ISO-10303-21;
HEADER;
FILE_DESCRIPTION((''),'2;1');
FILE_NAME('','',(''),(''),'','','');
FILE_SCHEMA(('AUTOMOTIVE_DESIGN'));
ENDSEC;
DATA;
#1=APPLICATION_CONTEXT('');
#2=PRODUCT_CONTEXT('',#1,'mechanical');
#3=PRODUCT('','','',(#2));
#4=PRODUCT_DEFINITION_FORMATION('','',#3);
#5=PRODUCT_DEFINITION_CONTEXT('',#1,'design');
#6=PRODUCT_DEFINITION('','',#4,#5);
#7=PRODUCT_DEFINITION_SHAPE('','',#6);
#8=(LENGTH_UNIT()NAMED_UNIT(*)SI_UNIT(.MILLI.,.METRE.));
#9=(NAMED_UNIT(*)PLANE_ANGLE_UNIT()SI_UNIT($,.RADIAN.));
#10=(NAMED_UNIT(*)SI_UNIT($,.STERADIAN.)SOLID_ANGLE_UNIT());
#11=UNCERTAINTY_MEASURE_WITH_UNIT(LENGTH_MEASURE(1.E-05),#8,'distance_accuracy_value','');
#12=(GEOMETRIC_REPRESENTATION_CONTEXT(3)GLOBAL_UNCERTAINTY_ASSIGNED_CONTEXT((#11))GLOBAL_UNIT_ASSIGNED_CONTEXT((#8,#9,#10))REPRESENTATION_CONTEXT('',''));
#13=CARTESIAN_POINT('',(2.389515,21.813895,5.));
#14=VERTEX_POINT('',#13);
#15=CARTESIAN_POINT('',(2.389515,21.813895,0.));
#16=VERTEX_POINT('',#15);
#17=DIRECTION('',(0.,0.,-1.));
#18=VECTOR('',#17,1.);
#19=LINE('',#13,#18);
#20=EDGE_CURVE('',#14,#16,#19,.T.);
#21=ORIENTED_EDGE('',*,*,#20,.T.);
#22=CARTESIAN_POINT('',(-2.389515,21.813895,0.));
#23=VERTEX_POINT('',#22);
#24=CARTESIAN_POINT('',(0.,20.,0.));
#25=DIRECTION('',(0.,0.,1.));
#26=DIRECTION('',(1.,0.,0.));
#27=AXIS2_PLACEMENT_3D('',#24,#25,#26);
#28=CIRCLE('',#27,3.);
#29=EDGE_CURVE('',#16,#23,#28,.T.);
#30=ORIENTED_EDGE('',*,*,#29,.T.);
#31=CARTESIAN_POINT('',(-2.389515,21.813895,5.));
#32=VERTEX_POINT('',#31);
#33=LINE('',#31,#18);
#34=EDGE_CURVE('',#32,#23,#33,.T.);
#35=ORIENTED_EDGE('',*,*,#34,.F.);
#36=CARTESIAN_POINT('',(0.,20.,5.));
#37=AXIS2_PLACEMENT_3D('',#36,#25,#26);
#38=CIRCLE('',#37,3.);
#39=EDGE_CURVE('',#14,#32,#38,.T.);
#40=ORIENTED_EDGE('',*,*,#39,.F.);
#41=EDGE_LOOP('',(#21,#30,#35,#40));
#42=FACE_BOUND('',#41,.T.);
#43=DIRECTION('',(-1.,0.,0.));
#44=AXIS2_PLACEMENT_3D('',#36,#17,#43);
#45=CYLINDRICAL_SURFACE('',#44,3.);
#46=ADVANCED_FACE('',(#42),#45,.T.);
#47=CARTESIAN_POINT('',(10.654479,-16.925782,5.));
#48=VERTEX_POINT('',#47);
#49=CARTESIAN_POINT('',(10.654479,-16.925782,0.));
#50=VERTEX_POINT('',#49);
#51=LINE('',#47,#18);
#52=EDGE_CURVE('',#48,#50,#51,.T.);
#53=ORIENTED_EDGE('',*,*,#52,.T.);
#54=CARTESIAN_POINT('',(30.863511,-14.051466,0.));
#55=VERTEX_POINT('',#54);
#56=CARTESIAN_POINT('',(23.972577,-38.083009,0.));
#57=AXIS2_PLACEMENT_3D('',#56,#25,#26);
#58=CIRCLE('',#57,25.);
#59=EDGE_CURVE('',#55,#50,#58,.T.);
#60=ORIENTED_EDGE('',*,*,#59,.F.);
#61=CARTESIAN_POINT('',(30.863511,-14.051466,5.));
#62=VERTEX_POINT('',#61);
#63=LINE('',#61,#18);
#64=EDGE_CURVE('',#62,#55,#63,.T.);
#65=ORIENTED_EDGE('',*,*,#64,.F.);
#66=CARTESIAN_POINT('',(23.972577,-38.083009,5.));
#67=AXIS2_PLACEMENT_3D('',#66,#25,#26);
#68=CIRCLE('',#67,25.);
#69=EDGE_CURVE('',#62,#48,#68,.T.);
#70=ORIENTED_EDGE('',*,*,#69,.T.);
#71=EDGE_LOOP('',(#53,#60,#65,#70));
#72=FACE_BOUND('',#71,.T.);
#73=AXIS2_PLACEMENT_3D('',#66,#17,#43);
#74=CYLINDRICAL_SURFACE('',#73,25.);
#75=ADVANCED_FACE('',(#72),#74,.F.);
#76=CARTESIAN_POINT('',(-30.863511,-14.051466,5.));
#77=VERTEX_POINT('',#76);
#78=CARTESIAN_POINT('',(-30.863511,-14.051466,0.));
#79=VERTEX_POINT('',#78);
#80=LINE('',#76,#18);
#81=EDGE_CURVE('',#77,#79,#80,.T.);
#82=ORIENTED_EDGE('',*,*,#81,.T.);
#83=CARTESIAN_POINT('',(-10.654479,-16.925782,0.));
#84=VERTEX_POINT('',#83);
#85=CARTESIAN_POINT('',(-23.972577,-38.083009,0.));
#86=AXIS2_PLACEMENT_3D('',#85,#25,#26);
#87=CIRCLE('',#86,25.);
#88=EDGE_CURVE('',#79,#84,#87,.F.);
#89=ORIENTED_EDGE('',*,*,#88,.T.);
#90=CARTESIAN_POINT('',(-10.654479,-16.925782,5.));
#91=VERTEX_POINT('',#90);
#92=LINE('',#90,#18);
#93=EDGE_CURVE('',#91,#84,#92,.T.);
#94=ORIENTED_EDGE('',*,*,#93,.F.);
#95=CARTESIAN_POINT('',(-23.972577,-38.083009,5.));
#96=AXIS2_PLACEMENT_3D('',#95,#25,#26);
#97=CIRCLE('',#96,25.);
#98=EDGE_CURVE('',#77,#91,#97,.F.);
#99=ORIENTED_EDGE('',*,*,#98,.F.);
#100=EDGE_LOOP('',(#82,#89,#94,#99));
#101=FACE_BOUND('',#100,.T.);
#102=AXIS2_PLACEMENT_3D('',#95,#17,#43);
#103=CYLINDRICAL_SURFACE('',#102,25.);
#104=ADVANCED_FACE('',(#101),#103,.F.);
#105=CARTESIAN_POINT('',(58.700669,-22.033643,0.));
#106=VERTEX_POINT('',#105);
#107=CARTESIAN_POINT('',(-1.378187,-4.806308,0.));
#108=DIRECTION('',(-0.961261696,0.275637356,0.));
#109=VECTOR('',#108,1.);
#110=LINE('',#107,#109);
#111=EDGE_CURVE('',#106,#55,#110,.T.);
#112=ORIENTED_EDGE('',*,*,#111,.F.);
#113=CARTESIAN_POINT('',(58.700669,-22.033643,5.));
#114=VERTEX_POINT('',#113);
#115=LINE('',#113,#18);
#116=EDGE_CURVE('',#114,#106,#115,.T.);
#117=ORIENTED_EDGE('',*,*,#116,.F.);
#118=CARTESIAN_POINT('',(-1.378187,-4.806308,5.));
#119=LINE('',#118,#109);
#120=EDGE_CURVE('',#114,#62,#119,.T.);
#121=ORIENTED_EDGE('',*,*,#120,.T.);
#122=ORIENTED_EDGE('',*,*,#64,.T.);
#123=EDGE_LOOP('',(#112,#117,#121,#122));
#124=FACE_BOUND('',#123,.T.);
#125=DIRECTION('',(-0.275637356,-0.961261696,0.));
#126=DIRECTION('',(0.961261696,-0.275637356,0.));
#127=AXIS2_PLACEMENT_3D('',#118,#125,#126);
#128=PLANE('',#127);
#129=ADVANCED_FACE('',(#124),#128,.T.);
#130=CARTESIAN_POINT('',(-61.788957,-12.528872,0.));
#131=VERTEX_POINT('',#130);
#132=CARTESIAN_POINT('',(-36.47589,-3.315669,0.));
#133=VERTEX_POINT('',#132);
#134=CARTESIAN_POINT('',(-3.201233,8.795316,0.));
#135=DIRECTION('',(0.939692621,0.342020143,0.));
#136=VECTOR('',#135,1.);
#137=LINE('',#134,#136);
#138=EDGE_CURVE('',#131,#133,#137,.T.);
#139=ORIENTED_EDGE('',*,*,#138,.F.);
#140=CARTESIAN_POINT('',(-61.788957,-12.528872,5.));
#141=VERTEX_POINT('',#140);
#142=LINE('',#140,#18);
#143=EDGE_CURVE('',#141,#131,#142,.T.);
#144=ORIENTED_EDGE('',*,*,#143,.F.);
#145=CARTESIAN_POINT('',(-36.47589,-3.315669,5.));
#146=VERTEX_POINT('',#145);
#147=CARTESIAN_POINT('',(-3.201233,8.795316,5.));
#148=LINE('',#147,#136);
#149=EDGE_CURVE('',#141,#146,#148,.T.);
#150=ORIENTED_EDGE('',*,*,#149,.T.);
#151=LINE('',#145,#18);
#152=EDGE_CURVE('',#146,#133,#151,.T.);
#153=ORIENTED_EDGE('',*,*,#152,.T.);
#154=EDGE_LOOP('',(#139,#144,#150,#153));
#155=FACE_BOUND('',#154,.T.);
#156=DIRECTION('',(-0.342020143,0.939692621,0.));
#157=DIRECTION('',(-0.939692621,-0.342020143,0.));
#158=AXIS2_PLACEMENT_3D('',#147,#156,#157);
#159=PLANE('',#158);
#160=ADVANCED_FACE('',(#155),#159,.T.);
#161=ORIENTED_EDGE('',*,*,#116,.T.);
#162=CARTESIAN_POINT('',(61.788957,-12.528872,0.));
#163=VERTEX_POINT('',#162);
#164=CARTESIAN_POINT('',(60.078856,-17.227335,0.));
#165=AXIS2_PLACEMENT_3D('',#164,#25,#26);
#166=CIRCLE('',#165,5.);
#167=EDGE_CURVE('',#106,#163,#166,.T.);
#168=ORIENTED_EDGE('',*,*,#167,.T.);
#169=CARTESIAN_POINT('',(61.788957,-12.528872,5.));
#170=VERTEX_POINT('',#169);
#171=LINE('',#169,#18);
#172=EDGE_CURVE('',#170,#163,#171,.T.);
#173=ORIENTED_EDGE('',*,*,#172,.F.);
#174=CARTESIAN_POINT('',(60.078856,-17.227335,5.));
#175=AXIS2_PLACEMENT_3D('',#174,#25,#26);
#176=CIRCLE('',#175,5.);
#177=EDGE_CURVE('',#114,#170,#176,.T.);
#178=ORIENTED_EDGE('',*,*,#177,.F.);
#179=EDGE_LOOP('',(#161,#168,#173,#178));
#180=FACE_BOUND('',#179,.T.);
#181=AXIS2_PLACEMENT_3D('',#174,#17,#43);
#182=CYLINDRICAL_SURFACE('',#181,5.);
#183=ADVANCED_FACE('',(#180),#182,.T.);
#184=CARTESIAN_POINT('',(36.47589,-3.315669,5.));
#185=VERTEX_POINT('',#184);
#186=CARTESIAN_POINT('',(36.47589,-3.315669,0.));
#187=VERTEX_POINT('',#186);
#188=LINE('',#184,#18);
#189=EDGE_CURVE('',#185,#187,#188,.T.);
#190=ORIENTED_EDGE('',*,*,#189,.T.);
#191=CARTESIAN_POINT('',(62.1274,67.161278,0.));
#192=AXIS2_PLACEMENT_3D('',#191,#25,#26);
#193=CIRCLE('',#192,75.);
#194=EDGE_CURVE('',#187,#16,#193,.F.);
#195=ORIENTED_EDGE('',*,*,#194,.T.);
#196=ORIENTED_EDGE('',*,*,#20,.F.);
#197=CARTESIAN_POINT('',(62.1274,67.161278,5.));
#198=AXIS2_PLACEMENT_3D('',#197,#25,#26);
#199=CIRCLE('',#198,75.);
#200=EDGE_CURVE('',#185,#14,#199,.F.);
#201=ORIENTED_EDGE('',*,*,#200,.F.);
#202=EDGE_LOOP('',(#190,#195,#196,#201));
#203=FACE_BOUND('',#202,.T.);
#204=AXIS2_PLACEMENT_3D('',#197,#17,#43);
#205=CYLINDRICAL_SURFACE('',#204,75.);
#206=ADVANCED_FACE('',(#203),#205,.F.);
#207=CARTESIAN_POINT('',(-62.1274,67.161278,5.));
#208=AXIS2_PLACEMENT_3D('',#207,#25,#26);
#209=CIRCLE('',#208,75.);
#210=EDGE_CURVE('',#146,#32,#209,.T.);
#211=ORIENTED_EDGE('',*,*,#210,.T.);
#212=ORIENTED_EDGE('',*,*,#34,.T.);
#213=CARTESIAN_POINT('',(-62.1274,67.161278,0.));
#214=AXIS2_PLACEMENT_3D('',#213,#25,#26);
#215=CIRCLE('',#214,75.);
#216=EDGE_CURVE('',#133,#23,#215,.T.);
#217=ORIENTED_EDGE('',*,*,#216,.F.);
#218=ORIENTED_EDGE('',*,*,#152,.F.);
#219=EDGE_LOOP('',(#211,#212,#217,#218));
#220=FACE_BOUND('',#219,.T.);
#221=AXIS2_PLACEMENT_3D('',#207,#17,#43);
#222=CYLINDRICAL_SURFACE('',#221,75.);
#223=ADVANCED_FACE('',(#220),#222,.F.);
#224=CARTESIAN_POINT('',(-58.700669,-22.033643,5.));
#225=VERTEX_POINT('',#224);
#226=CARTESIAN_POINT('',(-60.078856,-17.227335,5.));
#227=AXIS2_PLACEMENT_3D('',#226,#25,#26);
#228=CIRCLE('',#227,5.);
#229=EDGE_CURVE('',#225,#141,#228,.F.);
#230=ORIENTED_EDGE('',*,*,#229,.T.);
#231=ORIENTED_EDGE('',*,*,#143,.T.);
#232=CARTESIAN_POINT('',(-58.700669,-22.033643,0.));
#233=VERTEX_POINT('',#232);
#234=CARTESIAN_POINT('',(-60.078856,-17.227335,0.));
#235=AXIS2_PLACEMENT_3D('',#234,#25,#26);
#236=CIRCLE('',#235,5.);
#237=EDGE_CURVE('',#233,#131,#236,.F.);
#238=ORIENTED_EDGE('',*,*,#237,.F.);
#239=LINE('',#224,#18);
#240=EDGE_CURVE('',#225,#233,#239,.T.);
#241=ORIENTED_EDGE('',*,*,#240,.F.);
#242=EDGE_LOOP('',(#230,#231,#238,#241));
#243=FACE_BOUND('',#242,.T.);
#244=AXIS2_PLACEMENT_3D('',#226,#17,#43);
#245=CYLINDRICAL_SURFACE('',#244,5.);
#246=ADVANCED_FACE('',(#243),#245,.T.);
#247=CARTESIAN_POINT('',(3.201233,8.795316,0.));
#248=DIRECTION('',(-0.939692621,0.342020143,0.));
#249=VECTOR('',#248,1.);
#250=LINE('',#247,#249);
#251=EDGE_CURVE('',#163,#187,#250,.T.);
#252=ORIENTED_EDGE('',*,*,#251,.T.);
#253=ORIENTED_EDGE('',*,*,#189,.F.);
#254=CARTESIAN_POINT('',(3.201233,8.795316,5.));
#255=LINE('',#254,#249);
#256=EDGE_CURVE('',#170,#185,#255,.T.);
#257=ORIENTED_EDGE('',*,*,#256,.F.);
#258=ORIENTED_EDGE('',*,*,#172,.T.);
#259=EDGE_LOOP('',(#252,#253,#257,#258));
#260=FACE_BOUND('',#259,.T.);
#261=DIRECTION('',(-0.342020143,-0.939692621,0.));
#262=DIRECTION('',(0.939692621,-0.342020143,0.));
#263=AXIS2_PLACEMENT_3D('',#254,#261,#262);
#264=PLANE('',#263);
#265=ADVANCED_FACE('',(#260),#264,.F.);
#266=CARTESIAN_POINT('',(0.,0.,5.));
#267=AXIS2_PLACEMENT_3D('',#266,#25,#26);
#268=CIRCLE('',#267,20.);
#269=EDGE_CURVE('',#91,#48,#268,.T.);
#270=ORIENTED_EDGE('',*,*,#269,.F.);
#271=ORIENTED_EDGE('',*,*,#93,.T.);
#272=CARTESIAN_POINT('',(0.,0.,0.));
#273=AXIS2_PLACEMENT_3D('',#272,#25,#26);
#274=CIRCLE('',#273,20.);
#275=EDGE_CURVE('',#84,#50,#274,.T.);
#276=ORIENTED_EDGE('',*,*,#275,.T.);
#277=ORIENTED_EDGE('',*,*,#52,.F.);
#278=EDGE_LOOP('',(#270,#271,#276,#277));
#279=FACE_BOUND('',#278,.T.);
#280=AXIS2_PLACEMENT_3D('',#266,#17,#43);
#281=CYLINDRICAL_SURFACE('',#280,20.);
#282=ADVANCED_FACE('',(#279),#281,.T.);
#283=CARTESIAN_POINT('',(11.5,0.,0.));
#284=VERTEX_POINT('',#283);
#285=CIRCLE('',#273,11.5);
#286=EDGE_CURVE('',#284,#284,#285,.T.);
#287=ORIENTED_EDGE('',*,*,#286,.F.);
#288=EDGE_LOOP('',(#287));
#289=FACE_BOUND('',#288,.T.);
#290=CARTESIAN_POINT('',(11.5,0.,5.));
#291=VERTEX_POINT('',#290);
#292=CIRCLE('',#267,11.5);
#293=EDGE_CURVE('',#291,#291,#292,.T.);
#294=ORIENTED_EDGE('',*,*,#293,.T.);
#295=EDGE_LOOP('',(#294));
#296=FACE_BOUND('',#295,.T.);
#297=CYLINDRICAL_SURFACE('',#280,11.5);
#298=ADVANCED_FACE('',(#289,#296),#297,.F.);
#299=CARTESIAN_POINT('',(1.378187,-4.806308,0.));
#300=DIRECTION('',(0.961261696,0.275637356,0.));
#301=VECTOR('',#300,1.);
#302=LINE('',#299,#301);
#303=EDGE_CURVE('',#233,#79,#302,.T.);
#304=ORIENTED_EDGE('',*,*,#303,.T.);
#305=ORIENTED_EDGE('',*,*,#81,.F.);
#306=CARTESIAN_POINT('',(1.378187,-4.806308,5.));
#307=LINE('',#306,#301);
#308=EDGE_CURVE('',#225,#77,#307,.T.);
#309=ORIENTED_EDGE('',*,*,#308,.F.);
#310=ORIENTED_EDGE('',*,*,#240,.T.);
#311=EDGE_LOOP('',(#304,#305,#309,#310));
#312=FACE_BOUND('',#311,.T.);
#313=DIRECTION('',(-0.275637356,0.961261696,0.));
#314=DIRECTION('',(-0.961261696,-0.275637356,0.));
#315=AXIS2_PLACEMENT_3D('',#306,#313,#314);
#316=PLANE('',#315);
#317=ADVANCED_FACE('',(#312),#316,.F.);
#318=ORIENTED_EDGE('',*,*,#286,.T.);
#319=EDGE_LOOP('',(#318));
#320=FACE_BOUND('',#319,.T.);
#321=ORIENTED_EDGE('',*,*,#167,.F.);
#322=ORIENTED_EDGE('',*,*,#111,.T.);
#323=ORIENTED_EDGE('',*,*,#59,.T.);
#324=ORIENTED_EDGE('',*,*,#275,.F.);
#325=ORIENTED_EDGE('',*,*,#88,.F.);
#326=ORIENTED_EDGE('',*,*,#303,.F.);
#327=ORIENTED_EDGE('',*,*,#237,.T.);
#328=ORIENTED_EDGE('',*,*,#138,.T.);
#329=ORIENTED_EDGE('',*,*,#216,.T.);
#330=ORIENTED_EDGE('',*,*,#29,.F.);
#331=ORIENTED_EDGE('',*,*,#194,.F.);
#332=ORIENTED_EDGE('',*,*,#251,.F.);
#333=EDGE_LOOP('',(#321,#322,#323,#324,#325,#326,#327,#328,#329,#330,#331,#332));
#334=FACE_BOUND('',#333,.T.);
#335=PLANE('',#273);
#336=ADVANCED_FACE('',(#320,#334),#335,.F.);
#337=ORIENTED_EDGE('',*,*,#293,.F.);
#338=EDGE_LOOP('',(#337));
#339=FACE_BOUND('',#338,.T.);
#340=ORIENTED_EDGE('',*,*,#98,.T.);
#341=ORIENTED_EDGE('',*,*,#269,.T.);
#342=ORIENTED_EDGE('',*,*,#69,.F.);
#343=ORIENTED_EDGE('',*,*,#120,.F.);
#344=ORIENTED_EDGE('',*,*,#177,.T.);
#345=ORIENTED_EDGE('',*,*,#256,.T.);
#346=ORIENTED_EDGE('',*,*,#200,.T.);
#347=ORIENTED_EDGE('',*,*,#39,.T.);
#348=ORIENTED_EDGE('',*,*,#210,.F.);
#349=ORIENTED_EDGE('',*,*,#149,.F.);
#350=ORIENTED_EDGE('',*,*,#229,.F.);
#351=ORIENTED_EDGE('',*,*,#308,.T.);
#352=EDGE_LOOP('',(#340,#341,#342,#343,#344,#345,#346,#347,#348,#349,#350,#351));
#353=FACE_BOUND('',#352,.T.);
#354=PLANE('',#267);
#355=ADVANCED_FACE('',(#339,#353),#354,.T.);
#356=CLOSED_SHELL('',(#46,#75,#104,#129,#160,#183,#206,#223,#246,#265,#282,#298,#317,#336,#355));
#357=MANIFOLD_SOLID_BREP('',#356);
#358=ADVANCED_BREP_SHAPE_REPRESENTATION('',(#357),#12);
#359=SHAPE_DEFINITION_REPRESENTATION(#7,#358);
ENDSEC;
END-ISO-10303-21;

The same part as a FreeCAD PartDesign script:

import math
import FreeCAD as App
import Part
import Sketcher
Q = App.Units.Quantity

doc = App.newDocument("Part")
body = doc.addObject("PartDesign::Body", "Body")

# Sketch on XY plane
sketch1 = body.newObject("Sketcher::SketchObject", "Sketch")
sketch1.AttachmentSupport = (doc.getObject("XY_Plane"), [""])
sketch1.MapMode = "FlatFace"
sketch1.addGeometry([
    Part.LineSegment(App.Vector(30.9, -14.1, 0), App.Vector(58.7, -22, 0)),  # 0
    Part.ArcOfCircle(Part.Circle(App.Vector(60.1, -17.2, 0), App.Vector(0, 0, 1), 5), math.radians(-106), math.radians(70)),  # 1
    Part.LineSegment(App.Vector(61.8, -12.5, 0), App.Vector(36.5, -3.3, 0)),  # 2
    Part.ArcOfCircle(Part.Circle(App.Vector(62.1, 67.2, 0), App.Vector(0, 0, 1), 75), math.radians(-143), math.radians(-110)),  # 3
    Part.ArcOfCircle(Part.Circle(App.Vector(0, 20, 0), App.Vector(0, 0, 1), 3), math.radians(37), math.radians(143)),  # 4
    Part.ArcOfCircle(Part.Circle(App.Vector(-62.1, 67.2, 0), App.Vector(0, 0, 1), 75), math.radians(-70), math.radians(-37)),  # 5
    Part.LineSegment(App.Vector(-36.5, -3.3, 0), App.Vector(-61.8, -12.5, 0)),  # 6
    Part.ArcOfCircle(Part.Circle(App.Vector(-60.1, -17.2, 0), App.Vector(0, 0, 1), 5), math.radians(110), math.radians(286)),  # 7
    Part.LineSegment(App.Vector(-58.7, -22, 0), App.Vector(-30.9, -14.1, 0)),  # 8
    Part.ArcOfCircle(Part.Circle(App.Vector(-24, -38.1, 0), App.Vector(0, 0, 1), 25), math.radians(58), math.radians(106)),  # 9
    Part.ArcOfCircle(Part.Circle(App.Vector(0, 0, 0), App.Vector(0, 0, 1), 20), math.radians(-122), math.radians(-58)),  # 10
    Part.ArcOfCircle(Part.Circle(App.Vector(24, -38.1, 0), App.Vector(0, 0, 1), 25), math.radians(74), math.radians(122)),  # 11
    Part.Circle(App.Vector(0, 0, 0), App.Vector(0, 0, 1), 11.5),  # 12
], False)
sketch1.addConstraint([
    Sketcher.Constraint("Tangent", 0, 2, 1, 1),
    Sketcher.Constraint("Tangent", 1, 2, 2, 1),
    Sketcher.Constraint("Tangent", 2, 2, 3, 2),
    Sketcher.Constraint("Tangent", 3, 1, 4, 1),
    Sketcher.Constraint("Tangent", 4, 2, 5, 2),
    Sketcher.Constraint("Tangent", 5, 1, 6, 1),
    Sketcher.Constraint("Tangent", 6, 2, 7, 1),
    Sketcher.Constraint("Tangent", 7, 2, 8, 1),
    Sketcher.Constraint("Tangent", 8, 2, 9, 2),
    Sketcher.Constraint("Tangent", 9, 1, 10, 1),
    Sketcher.Constraint("Tangent", 10, 2, 11, 2),
    Sketcher.Constraint("Tangent", 11, 1, 0, 1),
    Sketcher.Constraint("Coincident", 10, 3, -1, 1),
    Sketcher.Constraint("Coincident", 12, 3, -1, 1),
    Sketcher.Constraint("Equal", 3, 5),
    Sketcher.Constraint("Equal", 1, 7),
    Sketcher.Constraint("Equal", 9, 11),
    Sketcher.Constraint("Symmetric", 3, 3, 5, 3, -2),
    Sketcher.Constraint("Symmetric", 1, 3, 7, 3, -2),
    Sketcher.Constraint("Horizontal", 9, 3, 11, 3),
    Sketcher.Constraint("Diameter", 12, 23.0),
    Sketcher.Constraint("Radius", 1, 5.0),
    Sketcher.Constraint("Radius", 3, 75.0),
    Sketcher.Constraint("Radius", 4, 3.0),
    Sketcher.Constraint("Radius", 9, 25.0),
    Sketcher.Constraint("Radius", 10, 20.0),
    Sketcher.Constraint("Angle", 0, Q("-16 deg")),
    Sketcher.Constraint("Angle", 2, Q("160 deg")),
    Sketcher.Constraint("DistanceY", -1, 1, 4, 3, 20.0),
    Sketcher.Constraint("DistanceX", -1, 1, 3, 3, 62.1274),
    Sketcher.Constraint("Distance", 0, 28.95898),
])
pad1 = body.newObject("PartDesign::Pad", "Pad")
pad1.Profile = sketch1
pad1.Length = 5

doc.recompute()
